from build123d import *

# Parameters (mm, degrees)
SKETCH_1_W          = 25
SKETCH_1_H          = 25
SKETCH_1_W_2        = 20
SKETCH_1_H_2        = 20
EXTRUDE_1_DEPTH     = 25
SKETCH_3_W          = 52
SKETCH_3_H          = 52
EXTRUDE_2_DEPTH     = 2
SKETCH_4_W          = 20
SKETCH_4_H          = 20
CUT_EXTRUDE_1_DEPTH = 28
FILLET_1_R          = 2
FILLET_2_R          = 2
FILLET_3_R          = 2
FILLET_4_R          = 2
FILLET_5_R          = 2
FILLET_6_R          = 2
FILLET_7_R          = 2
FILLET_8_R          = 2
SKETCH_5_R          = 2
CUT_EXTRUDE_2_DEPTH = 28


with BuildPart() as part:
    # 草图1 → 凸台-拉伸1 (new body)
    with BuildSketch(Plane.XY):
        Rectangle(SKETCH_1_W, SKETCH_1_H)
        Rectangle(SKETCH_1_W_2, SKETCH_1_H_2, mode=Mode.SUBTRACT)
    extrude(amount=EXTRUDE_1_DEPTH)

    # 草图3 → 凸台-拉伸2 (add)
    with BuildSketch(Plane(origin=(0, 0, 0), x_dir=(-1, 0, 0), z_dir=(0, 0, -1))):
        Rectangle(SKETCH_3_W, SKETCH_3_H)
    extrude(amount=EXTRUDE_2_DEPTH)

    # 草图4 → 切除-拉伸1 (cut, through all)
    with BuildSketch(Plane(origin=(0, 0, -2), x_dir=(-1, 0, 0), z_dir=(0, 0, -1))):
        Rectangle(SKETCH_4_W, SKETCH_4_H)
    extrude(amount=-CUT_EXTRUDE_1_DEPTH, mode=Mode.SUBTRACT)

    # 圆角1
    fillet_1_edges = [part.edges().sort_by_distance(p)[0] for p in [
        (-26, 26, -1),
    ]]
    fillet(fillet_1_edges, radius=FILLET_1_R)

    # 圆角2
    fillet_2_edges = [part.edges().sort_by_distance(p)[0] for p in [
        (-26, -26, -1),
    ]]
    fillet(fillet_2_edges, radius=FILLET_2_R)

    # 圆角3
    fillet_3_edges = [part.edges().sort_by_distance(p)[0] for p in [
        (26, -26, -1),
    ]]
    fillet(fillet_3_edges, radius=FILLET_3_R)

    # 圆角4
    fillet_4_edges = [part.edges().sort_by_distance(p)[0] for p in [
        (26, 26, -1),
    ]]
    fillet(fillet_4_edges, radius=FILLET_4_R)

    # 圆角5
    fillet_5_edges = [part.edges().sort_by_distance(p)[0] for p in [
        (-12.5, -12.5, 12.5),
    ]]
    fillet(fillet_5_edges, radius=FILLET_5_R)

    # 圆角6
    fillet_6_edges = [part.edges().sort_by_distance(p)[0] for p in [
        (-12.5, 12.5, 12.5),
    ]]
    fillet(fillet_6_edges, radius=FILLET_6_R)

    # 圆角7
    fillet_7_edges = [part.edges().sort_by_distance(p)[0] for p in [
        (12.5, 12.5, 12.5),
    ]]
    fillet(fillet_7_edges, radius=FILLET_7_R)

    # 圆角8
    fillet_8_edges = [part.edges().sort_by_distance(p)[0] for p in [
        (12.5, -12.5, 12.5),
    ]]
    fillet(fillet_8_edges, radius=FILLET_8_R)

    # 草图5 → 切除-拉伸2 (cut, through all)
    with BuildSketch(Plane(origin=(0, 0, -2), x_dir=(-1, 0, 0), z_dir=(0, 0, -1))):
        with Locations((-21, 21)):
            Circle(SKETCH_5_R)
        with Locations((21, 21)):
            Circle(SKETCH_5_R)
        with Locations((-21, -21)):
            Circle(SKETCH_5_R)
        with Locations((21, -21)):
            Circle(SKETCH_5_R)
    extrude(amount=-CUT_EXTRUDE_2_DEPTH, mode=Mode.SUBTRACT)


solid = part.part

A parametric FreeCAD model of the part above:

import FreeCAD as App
import Part
import Sketcher
Q = App.Units.Quantity


def edges_at(feature, points):
    """Names of the edges that pass closest to the given points."""
    edges = feature.Shape.Edges
    near = lambda p: min(range(len(edges)), key=lambda i: edges[i].distToShape(Part.Vertex(*p))[0])
    return sorted({f"Edge{near(p) + 1}" for p in points})

doc = App.newDocument("Part")
body = doc.addObject("PartDesign::Body", "Body")

# Sketch on XY plane
sketch1 = doc.addObject("Sketcher::SketchObject", "Sketch")
body.addObject(sketch1)
sketch1.AttachmentSupport = (doc.XY_Plane, [""])
sketch1.MapMode = "FlatFace"
sketch1.addGeometry(Part.LineSegment(App.Vector(-12.5, 12.5, 0), App.Vector(-12.5, -12.5, 0)), False)
sketch1.addGeometry(Part.LineSegment(App.Vector(-12.5, -12.5, 0), App.Vector(12.5, -12.5, 0)), False)
sketch1.addGeometry(Part.LineSegment(App.Vector(12.5, -12.5, 0), App.Vector(12.5, 12.5, 0)), False)
sketch1.addGeometry(Part.LineSegment(App.Vector(12.5, 12.5, 0), App.Vector(-12.5, 12.5, 0)), False)
sketch1.addGeometry(Part.LineSegment(App.Vector(10, -10, 0), App.Vector(-10, -10, 0)), False)
sketch1.addGeometry(Part.LineSegment(App.Vector(-10, -10, 0), App.Vector(-10, 10, 0)), False)
sketch1.addGeometry(Part.LineSegment(App.Vector(-10, 10, 0), App.Vector(10, 10, 0)), False)
sketch1.addGeometry(Part.LineSegment(App.Vector(10, 10, 0), App.Vector(10, -10, 0)), False)
sketch1.addConstraint(Sketcher.Constraint("Coincident", 0, 2, 1, 1))
sketch1.addConstraint(Sketcher.Constraint("Coincident", 1, 2, 2, 1))
sketch1.addConstraint(Sketcher.Constraint("Coincident", 2, 2, 3, 1))
sketch1.addConstraint(Sketcher.Constraint("Coincident", 3, 2, 0, 1))
sketch1.addConstraint(Sketcher.Constraint("Coincident", 4, 2, 5, 1))
sketch1.addConstraint(Sketcher.Constraint("Coincident", 5, 2, 6, 1))
sketch1.addConstraint(Sketcher.Constraint("Coincident", 6, 2, 7, 1))
sketch1.addConstraint(Sketcher.Constraint("Coincident", 7, 2, 4, 1))
sketch1.addConstraint(Sketcher.Constraint("Vertical", 0))
sketch1.addConstraint(Sketcher.Constraint("Horizontal", 1))
sketch1.addConstraint(Sketcher.Constraint("Vertical", 2))
sketch1.addConstraint(Sketcher.Constraint("Horizontal", 3))
sketch1.addConstraint(Sketcher.Constraint("Horizontal", 4))
sketch1.addConstraint(Sketcher.Constraint("Vertical", 5))
sketch1.addConstraint(Sketcher.Constraint("Horizontal", 6))
sketch1.addConstraint(Sketcher.Constraint("Vertical", 7))
sketch1.addConstraint(Sketcher.Constraint("Symmetric", 0, 2, 2, 2, -1, 1))
sketch1.addConstraint(Sketcher.Constraint("Symmetric", 4, 2, 6, 2, -1, 1))
sketch1.addConstraint(Sketcher.Constraint("Equal", 3, 0))
sketch1.addConstraint(Sketcher.Constraint("Equal", 6, 5))
sketch1.addConstraint(Sketcher.Constraint("DistanceX", 1, 1, 1, 2, Q("25 mm")))
sketch1.addConstraint(Sketcher.Constraint("DistanceX", 4, 2, 4, 1, Q("20 mm")))
pad1 = doc.addObject("PartDesign::Pad", "Pad")
body.addObject(pad1)
pad1.Profile = sketch1
pad1.Length = 25

# Sketch on XY plane
sketch2 = doc.addObject("Sketcher::SketchObject", "Sketch001")
body.addObject(sketch2)
sketch2.AttachmentSupport = (doc.XY_Plane, [""])
sketch2.MapMode = "FlatFace"
sketch2.addGeometry(Part.LineSegment(App.Vector(26, 26, 0), App.Vector(26, -26, 0)), False)
sketch2.addGeometry(Part.LineSegment(App.Vector(26, -26, 0), App.Vector(-26, -26, 0)), False)
sketch2.addGeometry(Part.LineSegment(App.Vector(-26, -26, 0), App.Vector(-26, 26, 0)), False)
sketch2.addGeometry(Part.LineSegment(App.Vector(-26, 26, 0), App.Vector(26, 26, 0)), False)
sketch2.addConstraint(Sketcher.Constraint("Coincident", 0, 2, 1, 1))
sketch2.addConstraint(Sketcher.Constraint("Coincident", 1, 2, 2, 1))
sketch2.addConstraint(Sketcher.Constraint("Coincident", 2, 2, 3, 1))
sketch2.addConstraint(Sketcher.Constraint("Coincident", 3, 2, 0, 1))
sketch2.addConstraint(Sketcher.Constraint("Vertical", 0))
sketch2.addConstraint(Sketcher.Constraint("Horizontal", 1))
sketch2.addConstraint(Sketcher.Constraint("Vertical", 2))
sketch2.addConstraint(Sketcher.Constraint("Horizontal", 3))
sketch2.addConstraint(Sketcher.Constraint("Symmetric", 0, 2, 2, 2, -1, 1))
sketch2.addConstraint(Sketcher.Constraint("Equal", 3, 0))
sketch2.addConstraint(Sketcher.Constraint("DistanceX", 1, 2, 1, 1, Q("52 mm")))
pad2 = doc.addObject("PartDesign::Pad", "Pad001")
body.addObject(pad2)
pad2.Profile = sketch2
pad2.Length = 2
pad2.Reversed = True

# Sketch on XY plane
sketch3 = doc.addObject("Sketcher::SketchObject", "Sketch002")
body.addObject(sketch3)
sketch3.AttachmentSupport = (doc.XY_Plane, [""])
sketch3.MapMode = "FlatFace"
sketch3.AttachmentOffset = App.Placement(App.Vector(0, 0, -2), App.Rotation())
sketch3.addGeometry(Part.LineSegment(App.Vector(10, 10, 0), App.Vector(10, -10, 0)), False)
sketch3.addGeometry(Part.LineSegment(App.Vector(10, -10, 0), App.Vector(-10, -10, 0)), False)
sketch3.addGeometry(Part.LineSegment(App.Vector(-10, -10, 0), App.Vector(-10, 10, 0)), False)
sketch3.addGeometry(Part.LineSegment(App.Vector(-10, 10, 0), App.Vector(10, 10, 0)), False)
sketch3.addConstraint(Sketcher.Constraint("Coincident", 0, 2, 1, 1))
sketch3.addConstraint(Sketcher.Constraint("Coincident", 1, 2, 2, 1))
sketch3.addConstraint(Sketcher.Constraint("Coincident", 2, 2, 3, 1))
sketch3.addConstraint(Sketcher.Constraint("Coincident", 3, 2, 0, 1))
sketch3.addConstraint(Sketcher.Constraint("Vertical", 0))
sketch3.addConstraint(Sketcher.Constraint("Horizontal", 1))
sketch3.addConstraint(Sketcher.Constraint("Vertical", 2))
sketch3.addConstraint(Sketcher.Constraint("Horizontal", 3))
sketch3.addConstraint(Sketcher.Constraint("Symmetric", 0, 2, 2, 2, -1, 1))
sketch3.addConstraint(Sketcher.Constraint("Equal", 3, 0))
sketch3.addConstraint(Sketcher.Constraint("DistanceX", 1, 2, 1, 1, Q("20 mm")))
pocket1 = doc.addObject("PartDesign::Pocket", "Pocket")
body.addObject(pocket1)
pocket1.Profile = sketch3
pocket1.Type = "ThroughAll"
pocket1.Reversed = True
doc.recompute()

fillet = doc.addObject("PartDesign::Fillet", "Fillet")
body.addObject(fillet)
fillet.Base = (pocket1, edges_at(pocket1, [(-26, 26, -1)]))
fillet.Radius = 2
doc.recompute()

fillet2 = doc.addObject("PartDesign::Fillet", "Fillet001")
body.addObject(fillet2)
fillet2.Base = (fillet, edges_at(fillet, [(-26, -26, -1)]))
fillet2.Radius = 2
doc.recompute()

fillet3 = doc.addObject("PartDesign::Fillet", "Fillet002")
body.addObject(fillet3)
fillet3.Base = (fillet2, edges_at(fillet2, [(26, -26, -1)]))
fillet3.Radius = 2
doc.recompute()

fillet4 = doc.addObject("PartDesign::Fillet", "Fillet003")
body.addObject(fillet4)
fillet4.Base = (fillet3, edges_at(fillet3, [(26, 26, -1)]))
fillet4.Radius = 2
doc.recompute()

fillet5 = doc.addObject("PartDesign::Fillet", "Fillet004")
body.addObject(fillet5)
fillet5.Base = (fillet4, edges_at(fillet4, [(-12.5, -12.5, 12.5)]))
fillet5.Radius = 2
doc.recompute()

fillet6 = doc.addObject("PartDesign::Fillet", "Fillet005")
body.addObject(fillet6)
fillet6.Base = (fillet5, edges_at(fillet5, [(-12.5, 12.5, 12.5)]))
fillet6.Radius = 2
doc.recompute()

fillet7 = doc.addObject("PartDesign::Fillet", "Fillet006")
body.addObject(fillet7)
fillet7.Base = (fillet6, edges_at(fillet6, [(12.5, 12.5, 12.5)]))
fillet7.Radius = 2
doc.recompute()

fillet8 = doc.addObject("PartDesign::Fillet", "Fillet007")
body.addObject(fillet8)
fillet8.Base = (fillet7, edges_at(fillet7, [(12.5, -12.5, 12.5)]))
fillet8.Radius = 2

# Sketch on XY plane
sketch4 = doc.addObject("Sketcher::SketchObject", "Sketch003")
body.addObject(sketch4)
sketch4.AttachmentSupport = (doc.XY_Plane, [""])
sketch4.MapMode = "FlatFace"
sketch4.AttachmentOffset = App.Placement(App.Vector(0, 0, -2), App.Rotation())
sketch4.addGeometry(Part.Circle(App.Vector(21, 21, 0), App.Vector(0, 0, 1), 2), False)
sketch4.addGeometry(Part.Circle(App.Vector(-21, 21, 0), App.Vector(0, 0, 1), 2), False)
sketch4.addGeometry(Part.Circle(App.Vector(21, -21, 0), App.Vector(0, 0, 1), 2), False)
sketch4.addGeometry(Part.Circle(App.Vector(-21, -21, 0), App.Vector(0, 0, 1), 2), False)
sketch4.addConstraint(Sketcher.Constraint("Equal", 0, 1))
sketch4.addConstraint(Sketcher.Constraint("Equal", 1, 2))
sketch4.addConstraint(Sketcher.Constraint("Equal", 2, 3))
sketch4.addConstraint(Sketcher.Constraint("Symmetric", 1, 3, 2, 3, -1, 1))
sketch4.addConstraint(Sketcher.Constraint("Symmetric", 0, 3, 3, 3, -1, 1))
sketch4.addConstraint(Sketcher.Constraint("Symmetric", 0, 3, 1, 3, -2))
sketch4.addConstraint(Sketcher.Constraint("Diameter", 0, Q("4 mm")))
sketch4.addConstraint(Sketcher.Constraint("DistanceX", -1, 1, 0, 3, Q("21 mm")))
sketch4.addConstraint(Sketcher.Constraint("DistanceY", -1, 1, 0, 3, Q("21 mm")))
pocket2 = doc.addObject("PartDesign::Pocket", "Pocket001")
body.addObject(pocket2)
pocket2.Profile = sketch4
pocket2.Type = "ThroughAll"
pocket2.Reversed = True

doc.recompute()
